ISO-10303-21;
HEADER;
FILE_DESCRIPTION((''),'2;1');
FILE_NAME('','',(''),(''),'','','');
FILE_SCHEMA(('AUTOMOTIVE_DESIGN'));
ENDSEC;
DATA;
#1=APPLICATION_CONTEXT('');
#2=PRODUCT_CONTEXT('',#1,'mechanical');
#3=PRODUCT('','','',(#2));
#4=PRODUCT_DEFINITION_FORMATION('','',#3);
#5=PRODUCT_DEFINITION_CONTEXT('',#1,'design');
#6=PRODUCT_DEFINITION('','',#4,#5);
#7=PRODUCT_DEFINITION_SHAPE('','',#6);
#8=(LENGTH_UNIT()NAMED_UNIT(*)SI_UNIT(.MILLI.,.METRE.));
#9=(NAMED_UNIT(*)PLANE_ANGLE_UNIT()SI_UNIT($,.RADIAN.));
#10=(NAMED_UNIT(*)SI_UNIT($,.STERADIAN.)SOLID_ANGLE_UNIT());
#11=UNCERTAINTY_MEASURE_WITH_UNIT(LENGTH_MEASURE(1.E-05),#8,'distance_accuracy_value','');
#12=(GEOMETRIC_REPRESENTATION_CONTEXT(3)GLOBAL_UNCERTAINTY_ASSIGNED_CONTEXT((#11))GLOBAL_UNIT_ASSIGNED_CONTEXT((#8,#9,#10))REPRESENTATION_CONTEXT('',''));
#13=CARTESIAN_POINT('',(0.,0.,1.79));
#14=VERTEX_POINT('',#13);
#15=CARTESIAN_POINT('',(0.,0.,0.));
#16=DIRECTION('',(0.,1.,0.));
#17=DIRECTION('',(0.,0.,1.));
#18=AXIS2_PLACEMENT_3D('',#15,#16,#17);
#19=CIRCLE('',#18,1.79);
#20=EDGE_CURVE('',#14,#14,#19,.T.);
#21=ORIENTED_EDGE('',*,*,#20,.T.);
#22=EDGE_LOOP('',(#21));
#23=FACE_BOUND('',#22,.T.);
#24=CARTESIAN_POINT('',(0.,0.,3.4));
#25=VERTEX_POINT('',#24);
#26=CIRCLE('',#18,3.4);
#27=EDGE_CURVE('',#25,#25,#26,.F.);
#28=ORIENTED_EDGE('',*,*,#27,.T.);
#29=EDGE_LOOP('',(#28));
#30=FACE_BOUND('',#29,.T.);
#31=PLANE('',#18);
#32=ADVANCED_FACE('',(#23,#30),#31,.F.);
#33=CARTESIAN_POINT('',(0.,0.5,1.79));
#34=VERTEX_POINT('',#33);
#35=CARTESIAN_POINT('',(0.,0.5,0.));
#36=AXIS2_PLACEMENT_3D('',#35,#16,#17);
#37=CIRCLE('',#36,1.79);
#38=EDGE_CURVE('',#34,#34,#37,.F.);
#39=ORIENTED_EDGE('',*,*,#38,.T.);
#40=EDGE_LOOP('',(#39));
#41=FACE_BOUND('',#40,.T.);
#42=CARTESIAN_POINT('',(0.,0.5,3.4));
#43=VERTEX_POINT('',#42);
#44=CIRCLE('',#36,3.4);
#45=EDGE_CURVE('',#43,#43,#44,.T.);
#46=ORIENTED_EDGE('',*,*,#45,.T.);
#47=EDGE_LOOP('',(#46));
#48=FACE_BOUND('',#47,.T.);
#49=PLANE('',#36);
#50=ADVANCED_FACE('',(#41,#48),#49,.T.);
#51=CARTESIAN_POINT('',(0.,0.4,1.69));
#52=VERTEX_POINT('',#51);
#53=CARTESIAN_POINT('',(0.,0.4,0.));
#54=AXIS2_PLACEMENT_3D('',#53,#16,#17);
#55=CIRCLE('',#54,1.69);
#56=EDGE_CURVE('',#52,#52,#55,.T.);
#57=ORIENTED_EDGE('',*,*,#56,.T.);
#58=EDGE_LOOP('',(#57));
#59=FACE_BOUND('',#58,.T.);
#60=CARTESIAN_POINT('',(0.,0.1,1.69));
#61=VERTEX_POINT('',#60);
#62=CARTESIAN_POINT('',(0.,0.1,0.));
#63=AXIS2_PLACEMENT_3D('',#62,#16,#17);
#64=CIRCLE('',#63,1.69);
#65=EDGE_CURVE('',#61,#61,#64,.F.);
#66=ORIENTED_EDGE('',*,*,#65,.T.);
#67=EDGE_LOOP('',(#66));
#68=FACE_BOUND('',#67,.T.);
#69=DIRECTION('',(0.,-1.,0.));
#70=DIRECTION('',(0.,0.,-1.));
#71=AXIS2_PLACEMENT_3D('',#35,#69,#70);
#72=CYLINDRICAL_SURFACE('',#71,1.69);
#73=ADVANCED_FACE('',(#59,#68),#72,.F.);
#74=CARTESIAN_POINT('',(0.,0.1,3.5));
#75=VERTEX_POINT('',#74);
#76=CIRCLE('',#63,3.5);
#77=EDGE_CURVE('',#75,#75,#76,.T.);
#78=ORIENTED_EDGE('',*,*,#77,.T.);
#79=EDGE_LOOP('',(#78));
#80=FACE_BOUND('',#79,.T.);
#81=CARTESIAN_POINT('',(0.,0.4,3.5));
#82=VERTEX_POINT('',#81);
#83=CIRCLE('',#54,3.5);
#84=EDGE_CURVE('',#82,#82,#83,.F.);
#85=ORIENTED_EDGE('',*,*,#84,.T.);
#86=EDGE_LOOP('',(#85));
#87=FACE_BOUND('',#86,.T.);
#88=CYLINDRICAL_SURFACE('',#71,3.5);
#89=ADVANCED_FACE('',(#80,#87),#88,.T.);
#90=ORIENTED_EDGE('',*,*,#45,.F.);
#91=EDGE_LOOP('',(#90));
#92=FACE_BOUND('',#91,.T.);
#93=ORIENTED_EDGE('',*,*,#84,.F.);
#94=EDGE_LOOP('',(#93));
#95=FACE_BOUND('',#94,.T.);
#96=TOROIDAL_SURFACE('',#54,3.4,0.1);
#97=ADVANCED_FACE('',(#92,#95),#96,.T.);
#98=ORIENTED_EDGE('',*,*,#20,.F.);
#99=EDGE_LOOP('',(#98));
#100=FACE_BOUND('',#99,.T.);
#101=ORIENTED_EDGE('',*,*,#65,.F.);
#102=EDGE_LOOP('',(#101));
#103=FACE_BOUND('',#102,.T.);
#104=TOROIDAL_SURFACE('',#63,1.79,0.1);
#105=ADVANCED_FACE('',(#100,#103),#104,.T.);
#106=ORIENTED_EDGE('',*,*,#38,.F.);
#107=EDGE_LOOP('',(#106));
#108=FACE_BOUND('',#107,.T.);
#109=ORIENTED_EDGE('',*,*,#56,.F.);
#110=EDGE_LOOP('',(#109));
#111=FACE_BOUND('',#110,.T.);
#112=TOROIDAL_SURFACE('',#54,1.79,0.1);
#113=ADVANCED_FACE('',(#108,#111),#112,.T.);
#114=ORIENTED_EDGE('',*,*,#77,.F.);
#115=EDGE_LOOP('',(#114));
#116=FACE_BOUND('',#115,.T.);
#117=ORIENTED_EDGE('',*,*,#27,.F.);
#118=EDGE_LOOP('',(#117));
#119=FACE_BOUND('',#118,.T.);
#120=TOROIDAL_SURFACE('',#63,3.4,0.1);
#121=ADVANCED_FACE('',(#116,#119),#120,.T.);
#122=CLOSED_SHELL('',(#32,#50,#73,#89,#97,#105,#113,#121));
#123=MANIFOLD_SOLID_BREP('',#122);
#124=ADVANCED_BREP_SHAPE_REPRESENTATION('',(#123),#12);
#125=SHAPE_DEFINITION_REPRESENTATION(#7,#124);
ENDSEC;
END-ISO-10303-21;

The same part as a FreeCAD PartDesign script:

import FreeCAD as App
import Part
import Sketcher


def edges_at(feature, points):
    """Names of the edges that pass closest to the given points."""
    edges = feature.Shape.Edges
    near = lambda p: min(range(len(edges)), key=lambda i: edges[i].distToShape(Part.Vertex(*p))[0])
    return sorted({f"Edge{near(p) + 1}" for p in points})

doc = App.newDocument("Part")
params = doc.addObject("Spreadsheet::Sheet", "Params")
for row, (alias, value) in enumerate([
    ("sketch1_diameter", "7 mm"),
    ("sketch1_diameter2", "3.38 mm"),
    ("pad1_length", "0.5 mm"),
    ("fillet_radius", "0.1 mm"),
], start=1):
    params.set(f"A{row}", alias)
    params.set(f"B{row}", "=" + value)
    params.setAlias(f"B{row}", alias)

body = doc.addObject("PartDesign::Body", "Body")

sketch1 = doc.addObject("Sketcher::SketchObject", "Sketch")
body.addObject(sketch1)
sketch1.AttachmentSupport = (doc.XZ_Plane, [""])
sketch1.MapMode = "FlatFace"
sketch1.addGeometry([
    Part.Circle(App.Vector(0, 0, 0), App.Vector(0, 0, 1), 3.5),
    Part.Circle(App.Vector(0, 0, 0), App.Vector(0, 0, 1), 1.69),
], False)
sketch1.addConstraint([
    Sketcher.Constraint("Coincident", 0, 3, -1, 1),
    Sketcher.Constraint("Coincident", 1, 3, -1, 1),
    Sketcher.Constraint("Diameter", 0, 7.0),
    Sketcher.Constraint("Diameter", 1, 3.38),
])
sketch1.setExpression("Constraints[2]", "Params.sketch1_diameter")
sketch1.setExpression("Constraints[3]", "Params.sketch1_diameter2")
pad1 = doc.addObject("PartDesign::Pad", "Pad")
body.addObject(pad1)
pad1.Profile = sketch1
pad1.setExpression("Length", "Params.pad1_length")
pad1.Reversed = True
doc.recompute()

fillet = doc.addObject("PartDesign::Fillet", "Fillet")
body.addObject(fillet)
fillet.Base = (pad1, edges_at(pad1, [
    (0, 0, -3.5),
    (0, 0.5, -3.5),
    (0, 0, -1.69),
    (0, 0.5, -1.69),
]))
fillet.setExpression("Radius", "Params.fillet_radius")

doc.recompute()
